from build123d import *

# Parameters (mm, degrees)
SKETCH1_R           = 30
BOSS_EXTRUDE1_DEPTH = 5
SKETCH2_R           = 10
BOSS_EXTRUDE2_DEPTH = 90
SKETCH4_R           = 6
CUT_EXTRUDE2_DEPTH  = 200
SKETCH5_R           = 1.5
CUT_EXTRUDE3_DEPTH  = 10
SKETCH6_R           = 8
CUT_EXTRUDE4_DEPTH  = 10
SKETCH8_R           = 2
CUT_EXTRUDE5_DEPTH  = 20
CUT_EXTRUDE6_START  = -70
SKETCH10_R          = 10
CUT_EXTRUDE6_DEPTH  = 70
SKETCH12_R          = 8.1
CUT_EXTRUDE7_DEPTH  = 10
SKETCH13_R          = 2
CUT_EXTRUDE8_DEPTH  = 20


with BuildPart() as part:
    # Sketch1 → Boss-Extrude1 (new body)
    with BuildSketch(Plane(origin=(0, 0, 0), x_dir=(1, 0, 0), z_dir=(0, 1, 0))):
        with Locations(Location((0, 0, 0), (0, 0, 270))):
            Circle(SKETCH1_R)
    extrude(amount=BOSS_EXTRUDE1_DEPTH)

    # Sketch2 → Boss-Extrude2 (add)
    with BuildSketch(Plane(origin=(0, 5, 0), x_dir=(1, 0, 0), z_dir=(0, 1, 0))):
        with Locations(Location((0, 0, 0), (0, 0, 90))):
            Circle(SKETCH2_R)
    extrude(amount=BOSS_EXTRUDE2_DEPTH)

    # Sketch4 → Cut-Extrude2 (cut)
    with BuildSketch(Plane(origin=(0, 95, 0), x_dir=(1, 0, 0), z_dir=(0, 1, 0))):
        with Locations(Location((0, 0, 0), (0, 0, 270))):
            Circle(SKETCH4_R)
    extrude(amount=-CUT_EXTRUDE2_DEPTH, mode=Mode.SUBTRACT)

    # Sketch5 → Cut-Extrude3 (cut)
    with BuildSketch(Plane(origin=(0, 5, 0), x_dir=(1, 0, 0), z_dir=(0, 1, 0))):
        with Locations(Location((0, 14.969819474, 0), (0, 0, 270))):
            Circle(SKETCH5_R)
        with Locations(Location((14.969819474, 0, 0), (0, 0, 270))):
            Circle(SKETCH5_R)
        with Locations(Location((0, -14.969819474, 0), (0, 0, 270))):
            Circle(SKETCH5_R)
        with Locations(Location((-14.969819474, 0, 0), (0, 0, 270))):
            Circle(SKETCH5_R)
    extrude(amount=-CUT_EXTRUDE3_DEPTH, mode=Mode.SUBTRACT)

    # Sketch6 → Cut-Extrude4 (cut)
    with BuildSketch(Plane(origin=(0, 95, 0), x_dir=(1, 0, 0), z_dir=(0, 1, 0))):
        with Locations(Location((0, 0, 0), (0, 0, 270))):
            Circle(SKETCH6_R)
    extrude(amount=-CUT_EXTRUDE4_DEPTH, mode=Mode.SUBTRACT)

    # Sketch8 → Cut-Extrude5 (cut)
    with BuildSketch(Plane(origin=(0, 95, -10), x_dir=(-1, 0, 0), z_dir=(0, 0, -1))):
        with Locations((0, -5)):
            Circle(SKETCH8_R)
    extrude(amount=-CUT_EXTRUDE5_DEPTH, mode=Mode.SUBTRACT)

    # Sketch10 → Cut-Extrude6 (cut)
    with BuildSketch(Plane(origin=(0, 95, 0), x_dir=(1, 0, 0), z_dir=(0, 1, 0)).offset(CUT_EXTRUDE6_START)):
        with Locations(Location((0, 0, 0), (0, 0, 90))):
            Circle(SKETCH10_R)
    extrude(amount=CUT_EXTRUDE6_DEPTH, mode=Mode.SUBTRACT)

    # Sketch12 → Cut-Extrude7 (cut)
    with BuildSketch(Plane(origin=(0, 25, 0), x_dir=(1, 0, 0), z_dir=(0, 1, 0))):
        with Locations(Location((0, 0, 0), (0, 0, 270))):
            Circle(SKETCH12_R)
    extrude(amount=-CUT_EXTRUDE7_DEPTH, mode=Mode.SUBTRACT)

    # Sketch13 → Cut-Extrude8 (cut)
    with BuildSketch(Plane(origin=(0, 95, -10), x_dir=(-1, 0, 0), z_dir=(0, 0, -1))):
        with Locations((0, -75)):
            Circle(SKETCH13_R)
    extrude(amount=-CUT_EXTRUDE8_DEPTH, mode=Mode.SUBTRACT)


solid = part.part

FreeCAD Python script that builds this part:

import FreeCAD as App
import Part
import Sketcher

V = App.Vector
Q = App.Units.Quantity

doc = App.newDocument("Part")
body = doc.addObject("PartDesign::Body", "Body")

# Sketch on XZ plane
sketch1 = doc.addObject("Sketcher::SketchObject", "Sketch")
body.addObject(sketch1)
sketch1.AttachmentSupport = (doc.XZ_Plane, [""])
sketch1.MapMode = "FlatFace"
sketch1.addGeometry(Part.Circle(V(0, 0, 0), V(0, 0, 1), 30), False)
sketch1.addConstraint([
    Sketcher.Constraint("Coincident", 0, 3, -1, 1),
    Sketcher.Constraint("Diameter", 0, Q("60 mm")),
])
pad1 = doc.addObject("PartDesign::Pad", "Pad")
body.addObject(pad1)
pad1.Profile = sketch1
pad1.Length = 5
pad1.Reversed = True

# Sketch on XZ plane
sketch2 = doc.addObject("Sketcher::SketchObject", "Sketch001")
body.addObject(sketch2)
sketch2.AttachmentSupport = (doc.XZ_Plane, [""])
sketch2.MapMode = "FlatFace"
sketch2.AttachmentOffset = App.Placement(V(0, 0, -5), App.Rotation())
sketch2.addGeometry(Part.Circle(V(0, 0, 0), V(0, 0, 1), 10), False)
sketch2.addConstraint([
    Sketcher.Constraint("Coincident", 0, 3, -1, 1),
    Sketcher.Constraint("Diameter", 0, Q("20 mm")),
])
pad2 = doc.addObject("PartDesign::Pad", "Pad001")
body.addObject(pad2)
pad2.Profile = sketch2
pad2.Length = 90
pad2.Reversed = True

# Sketch on XZ plane
sketch3 = doc.addObject("Sketcher::SketchObject", "Sketch002")
body.addObject(sketch3)
sketch3.AttachmentSupport = (doc.XZ_Plane, [""])
sketch3.MapMode = "FlatFace"
sketch3.AttachmentOffset = App.Placement(V(0, 0, -95), App.Rotation())
sketch3.addGeometry(Part.Circle(V(0, 0, 0), V(0, 0, 1), 6), False)
sketch3.addConstraint([
    Sketcher.Constraint("Coincident", 0, 3, -1, 1),
    Sketcher.Constraint("Diameter", 0, Q("12 mm")),
])
pocket1 = doc.addObject("PartDesign::Pocket", "Pocket")
body.addObject(pocket1)
pocket1.Profile = sketch3
pocket1.Length = 200
pocket1.Reversed = True

# Sketch on XZ plane
sketch4 = doc.addObject("Sketcher::SketchObject", "Sketch003")
body.addObject(sketch4)
sketch4.AttachmentSupport = (doc.XZ_Plane, [""])
sketch4.MapMode = "FlatFace"
sketch4.AttachmentOffset = App.Placement(V(0, 0, -5), App.Rotation())
sketch4.addGeometry([
    Part.Circle(V(0, -15, 0), V(0, 0, 1), 1.5),
    Part.Circle(V(15, 0, 0), V(0, 0, 1), 1.5),
    Part.Circle(V(0, 15, 0), V(0, 0, 1), 1.5),
    Part.Circle(V(-15, 0, 0), V(0, 0, 1), 1.5),
], False)
sketch4.addConstraint([
    Sketcher.Constraint("Equal", 0, 1),
    Sketcher.Constraint("Equal", 1, 2),
    Sketcher.Constraint("Equal", 2, 3),
    Sketcher.Constraint("Symmetric", 0, 3, 2, 3, -1, 1),
    Sketcher.Constraint("Symmetric", 1, 3, 3, 3, -1, 1),
    Sketcher.Constraint("PointOnObject", 0, 3, -2),
    Sketcher.Constraint("PointOnObject", 1, 3, -1),
    Sketcher.Constraint("Diameter", 0, Q("3 mm")),
    Sketcher.Constraint("DistanceY", 0, 3, -1, 1, Q("14.969819 mm")),
    Sketcher.Constraint("DistanceX", -1, 1, 1, 3, Q("14.969819 mm")),
])
pocket2 = doc.addObject("PartDesign::Pocket", "Pocket001")
body.addObject(pocket2)
pocket2.Profile = sketch4
pocket2.Length = 10
pocket2.Reversed = True

# Sketch on XZ plane
sketch5 = doc.addObject("Sketcher::SketchObject", "Sketch004")
body.addObject(sketch5)
sketch5.AttachmentSupport = (doc.XZ_Plane, [""])
sketch5.MapMode = "FlatFace"
sketch5.AttachmentOffset = App.Placement(V(0, 0, -95), App.Rotation())
sketch5.addGeometry(Part.Circle(V(0, 0, 0), V(0, 0, 1), 8), False)
sketch5.addConstraint([
    Sketcher.Constraint("Coincident", 0, 3, -1, 1),
    Sketcher.Constraint("Diameter", 0, Q("16 mm")),
])
pocket3 = doc.addObject("PartDesign::Pocket", "Pocket002")
body.addObject(pocket3)
pocket3.Profile = sketch5
pocket3.Length = 10
pocket3.Reversed = True

# Sketch on XY plane
sketch6 = doc.addObject("Sketcher::SketchObject", "Sketch005")
body.addObject(sketch6)
sketch6.AttachmentSupport = (doc.XY_Plane, [""])
sketch6.MapMode = "FlatFace"
sketch6.AttachmentOffset = App.Placement(V(0, 0, -10), App.Rotation())
sketch6.addGeometry(Part.Circle(V(0, 90, 0), V(0, 0, 1), 2), False)
sketch6.addConstraint([
    Sketcher.Constraint("PointOnObject", 0, 3, -2),
    Sketcher.Constraint("Diameter", 0, Q("4 mm")),
    Sketcher.Constraint("DistanceY", -1, 1, 0, 3, Q("90 mm")),
])
pocket4 = doc.addObject("PartDesign::Pocket", "Pocket003")
body.addObject(pocket4)
pocket4.Profile = sketch6
pocket4.Length = 20
pocket4.Reversed = True

# Sketch on XZ plane
sketch7 = doc.addObject("Sketcher::SketchObject", "Sketch006")
body.addObject(sketch7)
sketch7.AttachmentSupport = (doc.XZ_Plane, [""])
sketch7.MapMode = "FlatFace"
sketch7.AttachmentOffset = App.Placement(V(0, 0, -25), App.Rotation())
sketch7.addGeometry(Part.Circle(V(0, 0, 0), V(0, 0, 1), 10), False)
sketch7.addConstraint([
    Sketcher.Constraint("Coincident", 0, 3, -1, 1),
    Sketcher.Constraint("Diameter", 0, Q("20 mm")),
])
pocket5 = doc.addObject("PartDesign::Pocket", "Pocket004")
body.addObject(pocket5)
pocket5.Profile = sketch7
pocket5.Length = 70

# Sketch on XZ plane
sketch8 = doc.addObject("Sketcher::SketchObject", "Sketch007")
body.addObject(sketch8)
sketch8.AttachmentSupport = (doc.XZ_Plane, [""])
sketch8.MapMode = "FlatFace"
sketch8.AttachmentOffset = App.Placement(V(0, 0, -25), App.Rotation())
sketch8.addGeometry(Part.Circle(V(0, 0, 0), V(0, 0, 1), 8), False)
sketch8.addConstraint([
    Sketcher.Constraint("Coincident", 0, 3, -1, 1),
    Sketcher.Constraint("Diameter", 0, Q("16.2 mm")),
])
pocket6 = doc.addObject("PartDesign::Pocket", "Pocket005")
body.addObject(pocket6)
pocket6.Profile = sketch8
pocket6.Length = 10
pocket6.Reversed = True

# Sketch on XY plane
sketch9 = doc.addObject("Sketcher::SketchObject", "Sketch008")
body.addObject(sketch9)
sketch9.AttachmentSupport = (doc.XY_Plane, [""])
sketch9.MapMode = "FlatFace"
sketch9.AttachmentOffset = App.Placement(V(0, 0, -10), App.Rotation())
sketch9.addGeometry(Part.Circle(V(0, 20, 0), V(0, 0, 1), 2), False)
sketch9.addConstraint([
    Sketcher.Constraint("PointOnObject", 0, 3, -2),
    Sketcher.Constraint("Diameter", 0, Q("4 mm")),
    Sketcher.Constraint("DistanceY", -1, 1, 0, 3, Q("20 mm")),
])
pocket7 = doc.addObject("PartDesign::Pocket", "Pocket006")
body.addObject(pocket7)
pocket7.Profile = sketch9
pocket7.Length = 20
pocket7.Reversed = True

doc.recompute()
